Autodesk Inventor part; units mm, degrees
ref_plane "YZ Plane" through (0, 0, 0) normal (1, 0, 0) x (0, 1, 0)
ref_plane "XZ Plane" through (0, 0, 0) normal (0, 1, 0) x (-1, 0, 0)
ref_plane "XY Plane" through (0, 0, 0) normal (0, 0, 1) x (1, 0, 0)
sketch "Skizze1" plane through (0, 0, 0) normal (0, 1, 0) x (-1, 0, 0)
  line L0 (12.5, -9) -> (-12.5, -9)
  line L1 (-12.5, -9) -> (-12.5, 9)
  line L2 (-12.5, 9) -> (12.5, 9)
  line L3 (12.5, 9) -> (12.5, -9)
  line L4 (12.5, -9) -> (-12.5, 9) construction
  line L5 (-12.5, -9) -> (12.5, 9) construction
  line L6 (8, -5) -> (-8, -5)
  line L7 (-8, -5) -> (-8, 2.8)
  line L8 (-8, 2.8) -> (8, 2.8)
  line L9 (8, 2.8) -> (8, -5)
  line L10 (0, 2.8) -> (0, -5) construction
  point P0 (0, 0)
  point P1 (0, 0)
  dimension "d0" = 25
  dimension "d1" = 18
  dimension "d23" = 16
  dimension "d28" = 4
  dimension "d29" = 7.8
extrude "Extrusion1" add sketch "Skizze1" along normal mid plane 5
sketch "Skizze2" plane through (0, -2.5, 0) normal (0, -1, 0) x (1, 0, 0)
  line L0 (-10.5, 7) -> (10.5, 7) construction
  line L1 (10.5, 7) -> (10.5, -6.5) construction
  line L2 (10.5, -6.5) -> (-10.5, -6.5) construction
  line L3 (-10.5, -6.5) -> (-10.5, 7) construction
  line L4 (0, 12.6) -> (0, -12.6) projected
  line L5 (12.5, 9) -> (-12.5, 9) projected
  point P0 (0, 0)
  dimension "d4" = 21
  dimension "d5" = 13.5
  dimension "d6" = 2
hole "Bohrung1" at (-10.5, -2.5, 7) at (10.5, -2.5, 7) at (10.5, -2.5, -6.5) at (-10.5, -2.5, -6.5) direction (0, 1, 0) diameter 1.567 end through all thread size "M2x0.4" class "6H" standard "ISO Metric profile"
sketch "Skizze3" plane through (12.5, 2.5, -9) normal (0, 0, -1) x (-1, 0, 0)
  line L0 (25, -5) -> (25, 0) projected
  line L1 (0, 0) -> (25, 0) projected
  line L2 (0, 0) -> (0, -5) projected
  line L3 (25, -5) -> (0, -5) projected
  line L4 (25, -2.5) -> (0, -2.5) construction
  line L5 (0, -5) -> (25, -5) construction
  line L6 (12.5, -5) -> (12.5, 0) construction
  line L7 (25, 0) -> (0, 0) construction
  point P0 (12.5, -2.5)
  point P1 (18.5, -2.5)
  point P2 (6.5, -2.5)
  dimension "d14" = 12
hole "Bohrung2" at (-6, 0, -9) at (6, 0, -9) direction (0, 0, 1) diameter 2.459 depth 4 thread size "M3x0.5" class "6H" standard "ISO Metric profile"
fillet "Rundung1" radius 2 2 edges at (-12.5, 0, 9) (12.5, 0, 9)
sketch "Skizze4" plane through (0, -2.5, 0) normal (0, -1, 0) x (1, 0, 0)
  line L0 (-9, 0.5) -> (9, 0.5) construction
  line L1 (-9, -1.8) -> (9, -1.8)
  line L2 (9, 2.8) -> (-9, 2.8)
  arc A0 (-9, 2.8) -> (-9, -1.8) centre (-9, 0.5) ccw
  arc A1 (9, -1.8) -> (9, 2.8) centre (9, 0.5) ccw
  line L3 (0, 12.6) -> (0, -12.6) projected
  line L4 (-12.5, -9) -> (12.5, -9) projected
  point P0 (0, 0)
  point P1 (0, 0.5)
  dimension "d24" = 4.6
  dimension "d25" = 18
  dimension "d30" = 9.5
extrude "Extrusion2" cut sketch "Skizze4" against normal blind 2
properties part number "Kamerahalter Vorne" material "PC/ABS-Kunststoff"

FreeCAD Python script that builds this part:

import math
import FreeCAD as App
import Part
import Sketcher
from FreeCAD import Vector
Q = App.Units.Quantity


def edges_at(feature, points):
    """Names of the edges that pass closest to the given points."""
    edges = feature.Shape.Edges
    near = lambda p: min(range(len(edges)), key=lambda i: edges[i].distToShape(Part.Vertex(*p))[0])
    return sorted({f"Edge{near(p) + 1}" for p in points})


def add_polygon(sketch, points):
    """Adds a closed chain of lines whose ends are joined by coincident constraints."""
    first, n = sketch.GeometryCount, len(points)
    for a, b in zip(points, points[1:] + points[:1]):
        sketch.addGeometry(Part.LineSegment(App.Vector(*a, 0), App.Vector(*b, 0)), False)
    for i in range(n):
        sketch.addConstraint(Sketcher.Constraint("Coincident", first + i, 2, first + (i + 1) % n, 1))

doc = App.newDocument("Part")
body = doc.addObject("PartDesign::Body", "Body")

# Sketch on XZ plane
sketch1 = body.newObject("Sketcher::SketchObject", "Sketch")
sketch1.AttachmentSupport = (doc.getObject("XZ_Plane"), [""])
sketch1.MapMode = "FlatFace"
add_polygon(sketch1, [(12, -9), (-12, -9), (-12, 9), (12, 9)])  # lines 0-3
add_polygon(sketch1, [(-8, 3), (-8, -5), (8, -5), (8, 3)])  # lines 4-7
sketch1.addConstraint(Sketcher.Constraint("Horizontal", 0))
sketch1.addConstraint(Sketcher.Constraint("Vertical", 1))
sketch1.addConstraint(Sketcher.Constraint("Horizontal", 2))
sketch1.addConstraint(Sketcher.Constraint("Vertical", 3))
sketch1.addConstraint(Sketcher.Constraint("Vertical", 4))
sketch1.addConstraint(Sketcher.Constraint("Horizontal", 5))
sketch1.addConstraint(Sketcher.Constraint("Vertical", 6))
sketch1.addConstraint(Sketcher.Constraint("Horizontal", 7))
sketch1.addConstraint(Sketcher.Constraint("Symmetric", 0, 2, 2, 2, -1, 1))
sketch1.addConstraint(Sketcher.Constraint("DistanceX", 0, 2, 0, 1, Q("25 mm")))
sketch1.addConstraint(Sketcher.Constraint("DistanceX", 5, 1, 5, 2, Q("16 mm")))
sketch1.addConstraint(Sketcher.Constraint("DistanceY", 1, 1, 1, 2, Q("18 mm")))
sketch1.addConstraint(Sketcher.Constraint("DistanceY", 4, 2, 4, 1, Q("7.8 mm")))
sketch1.addConstraint(Sketcher.Constraint("DistanceY", 0, 2, 4, 2, Q("4 mm")))
sketch1.addConstraint(Sketcher.Constraint("DistanceX", 4, 2, -1, 1, Q("8 mm")))
pad1 = body.newObject("PartDesign::Pad", "Pad")
pad1.Profile = sketch1
pad1.Length = 5
pad1.Midplane = True

# Sketch on XZ plane
sketch2 = body.newObject("Sketcher::SketchObject", "Sketch001")
sketch2.AttachmentSupport = (doc.getObject("XZ_Plane"), [""])
sketch2.MapMode = "FlatFace"
sketch2.AttachmentOffset = App.Placement(Vector(0, 0, 2.5), App.Rotation())
sketch2.addGeometry(Part.Circle(Vector(-10.5, 7, 0), Vector(0, 0, 1), 0.8), False)
sketch2.addGeometry(Part.Circle(Vector(10.5, 7, 0), Vector(0, 0, 1), 0.8), False)
sketch2.addGeometry(Part.Circle(Vector(10.5, -6.5, 0), Vector(0, 0, 1), 0.8), False)
sketch2.addGeometry(Part.Circle(Vector(-10.5, -6.5, 0), Vector(0, 0, 1), 0.8), False)
sketch2.addConstraint(Sketcher.Constraint("Equal", 0, 1))
sketch2.addConstraint(Sketcher.Constraint("Equal", 1, 2))
sketch2.addConstraint(Sketcher.Constraint("Equal", 2, 3))
sketch2.addConstraint(Sketcher.Constraint("Symmetric", 0, 3, 1, 3, -2))
sketch2.addConstraint(Sketcher.Constraint("Symmetric", 2, 3, 3, 3, -2))
sketch2.addConstraint(Sketcher.Constraint("Vertical", 1, 3, 2, 3))
sketch2.addConstraint(Sketcher.Constraint("Diameter", 0, Q("1.567 mm")))
sketch2.addConstraint(Sketcher.Constraint("DistanceY", -1, 1, 0, 3, Q("7 mm")))
sketch2.addConstraint(Sketcher.Constraint("DistanceX", 0, 3, 1, 3, Q("21 mm")))
sketch2.addConstraint(Sketcher.Constraint("DistanceY", 2, 3, -1, 1, Q("6.5 mm")))
doc.recompute()
hole = body.newObject("PartDesign::Hole", "Hole")
hole.Profile = sketch2
hole.ThreadType = "None"
hole.Diameter = 1.567
hole.DepthType = "ThroughAll"

# Sketch on XY plane
sketch3 = body.newObject("Sketcher::SketchObject", "Sketch002")
sketch3.AttachmentSupport = (doc.getObject("XY_Plane"), [""])
sketch3.MapMode = "FlatFace"
sketch3.AttachmentOffset = App.Placement(Vector(0, 0, -9), App.Rotation())
sketch3.addGeometry(Part.Circle(Vector(-6, 0, 0), Vector(0, 0, 1), 1.2), False)
sketch3.addGeometry(Part.Circle(Vector(6, 0, 0), Vector(0, 0, 1), 1.2), False)
sketch3.addConstraint(Sketcher.Constraint("Equal", 0, 1))
sketch3.addConstraint(Sketcher.Constraint("Symmetric", 0, 3, 1, 3, -1, 1))
sketch3.addConstraint(Sketcher.Constraint("PointOnObject", 0, 3, -1))
sketch3.addConstraint(Sketcher.Constraint("Diameter", 0, Q("2.459 mm")))
sketch3.addConstraint(Sketcher.Constraint("DistanceX", 0, 3, -1, 1, Q("6 mm")))
doc.recompute()
hole2 = body.newObject("PartDesign::Hole", "Hole001")
hole2.Profile = sketch3
hole2.ThreadType = "None"
hole2.Diameter = 2.459
hole2.DepthType = "Dimension"
hole2.Depth = 4
hole2.DrillPoint = "Flat"
hole2.Reversed = True
doc.recompute()

fillet = body.newObject("PartDesign::Fillet", "Fillet")
fillet.Base = (hole2, edges_at(hole2, [(-12.5, 0, 9), (12.5, 0, 9)]))
fillet.Radius = 2

# Sketch on XZ plane
sketch4 = body.newObject("Sketcher::SketchObject", "Sketch003")
sketch4.AttachmentSupport = (doc.getObject("XZ_Plane"), [""])
sketch4.MapMode = "FlatFace"
sketch4.AttachmentOffset = App.Placement(Vector(0, 0, 2.5), App.Rotation())
sketch4.addGeometry(Part.ArcOfCircle(Part.Circle(Vector(-9, 0.5, 0), Vector(0, 0, 1), 2.3), math.radians(90), math.radians(270)), False)
sketch4.addGeometry(Part.LineSegment(Vector(-9, -1.8, 0), Vector(9, -1.8, 0)), False)
sketch4.addGeometry(Part.ArcOfCircle(Part.Circle(Vector(9, 0.5, 0), Vector(0, 0, 1), 2.3), math.radians(-90), math.radians(90)), False)
sketch4.addGeometry(Part.LineSegment(Vector(9, 2.8, 0), Vector(-9, 2.8, 0)), False)
sketch4.addConstraint(Sketcher.Constraint("Tangent", 0, 2, 1, 1))
sketch4.addConstraint(Sketcher.Constraint("Tangent", 1, 2, 2, 1))
sketch4.addConstraint(Sketcher.Constraint("Tangent", 2, 2, 3, 1))
sketch4.addConstraint(Sketcher.Constraint("Tangent", 3, 2, 0, 1))
sketch4.addConstraint(Sketcher.Constraint("Horizontal", 1))
sketch4.addConstraint(Sketcher.Constraint("Horizontal", 3))
sketch4.addConstraint(Sketcher.Constraint("Radius", 0, Q("2.3 mm")))
sketch4.addConstraint(Sketcher.Constraint("DistanceX", 1, 1, 1, 2, Q("18 mm")))
sketch4.addConstraint(Sketcher.Constraint("DistanceX", 0, 3, -1, 1, Q("9 mm")))
sketch4.addConstraint(Sketcher.Constraint("DistanceY", -1, 1, 0, 3, Q("0.5 mm")))
pocket1 = body.newObject("PartDesign::Pocket", "Pocket")
pocket1.Profile = sketch4
pocket1.Length = 2

doc.recompute()
